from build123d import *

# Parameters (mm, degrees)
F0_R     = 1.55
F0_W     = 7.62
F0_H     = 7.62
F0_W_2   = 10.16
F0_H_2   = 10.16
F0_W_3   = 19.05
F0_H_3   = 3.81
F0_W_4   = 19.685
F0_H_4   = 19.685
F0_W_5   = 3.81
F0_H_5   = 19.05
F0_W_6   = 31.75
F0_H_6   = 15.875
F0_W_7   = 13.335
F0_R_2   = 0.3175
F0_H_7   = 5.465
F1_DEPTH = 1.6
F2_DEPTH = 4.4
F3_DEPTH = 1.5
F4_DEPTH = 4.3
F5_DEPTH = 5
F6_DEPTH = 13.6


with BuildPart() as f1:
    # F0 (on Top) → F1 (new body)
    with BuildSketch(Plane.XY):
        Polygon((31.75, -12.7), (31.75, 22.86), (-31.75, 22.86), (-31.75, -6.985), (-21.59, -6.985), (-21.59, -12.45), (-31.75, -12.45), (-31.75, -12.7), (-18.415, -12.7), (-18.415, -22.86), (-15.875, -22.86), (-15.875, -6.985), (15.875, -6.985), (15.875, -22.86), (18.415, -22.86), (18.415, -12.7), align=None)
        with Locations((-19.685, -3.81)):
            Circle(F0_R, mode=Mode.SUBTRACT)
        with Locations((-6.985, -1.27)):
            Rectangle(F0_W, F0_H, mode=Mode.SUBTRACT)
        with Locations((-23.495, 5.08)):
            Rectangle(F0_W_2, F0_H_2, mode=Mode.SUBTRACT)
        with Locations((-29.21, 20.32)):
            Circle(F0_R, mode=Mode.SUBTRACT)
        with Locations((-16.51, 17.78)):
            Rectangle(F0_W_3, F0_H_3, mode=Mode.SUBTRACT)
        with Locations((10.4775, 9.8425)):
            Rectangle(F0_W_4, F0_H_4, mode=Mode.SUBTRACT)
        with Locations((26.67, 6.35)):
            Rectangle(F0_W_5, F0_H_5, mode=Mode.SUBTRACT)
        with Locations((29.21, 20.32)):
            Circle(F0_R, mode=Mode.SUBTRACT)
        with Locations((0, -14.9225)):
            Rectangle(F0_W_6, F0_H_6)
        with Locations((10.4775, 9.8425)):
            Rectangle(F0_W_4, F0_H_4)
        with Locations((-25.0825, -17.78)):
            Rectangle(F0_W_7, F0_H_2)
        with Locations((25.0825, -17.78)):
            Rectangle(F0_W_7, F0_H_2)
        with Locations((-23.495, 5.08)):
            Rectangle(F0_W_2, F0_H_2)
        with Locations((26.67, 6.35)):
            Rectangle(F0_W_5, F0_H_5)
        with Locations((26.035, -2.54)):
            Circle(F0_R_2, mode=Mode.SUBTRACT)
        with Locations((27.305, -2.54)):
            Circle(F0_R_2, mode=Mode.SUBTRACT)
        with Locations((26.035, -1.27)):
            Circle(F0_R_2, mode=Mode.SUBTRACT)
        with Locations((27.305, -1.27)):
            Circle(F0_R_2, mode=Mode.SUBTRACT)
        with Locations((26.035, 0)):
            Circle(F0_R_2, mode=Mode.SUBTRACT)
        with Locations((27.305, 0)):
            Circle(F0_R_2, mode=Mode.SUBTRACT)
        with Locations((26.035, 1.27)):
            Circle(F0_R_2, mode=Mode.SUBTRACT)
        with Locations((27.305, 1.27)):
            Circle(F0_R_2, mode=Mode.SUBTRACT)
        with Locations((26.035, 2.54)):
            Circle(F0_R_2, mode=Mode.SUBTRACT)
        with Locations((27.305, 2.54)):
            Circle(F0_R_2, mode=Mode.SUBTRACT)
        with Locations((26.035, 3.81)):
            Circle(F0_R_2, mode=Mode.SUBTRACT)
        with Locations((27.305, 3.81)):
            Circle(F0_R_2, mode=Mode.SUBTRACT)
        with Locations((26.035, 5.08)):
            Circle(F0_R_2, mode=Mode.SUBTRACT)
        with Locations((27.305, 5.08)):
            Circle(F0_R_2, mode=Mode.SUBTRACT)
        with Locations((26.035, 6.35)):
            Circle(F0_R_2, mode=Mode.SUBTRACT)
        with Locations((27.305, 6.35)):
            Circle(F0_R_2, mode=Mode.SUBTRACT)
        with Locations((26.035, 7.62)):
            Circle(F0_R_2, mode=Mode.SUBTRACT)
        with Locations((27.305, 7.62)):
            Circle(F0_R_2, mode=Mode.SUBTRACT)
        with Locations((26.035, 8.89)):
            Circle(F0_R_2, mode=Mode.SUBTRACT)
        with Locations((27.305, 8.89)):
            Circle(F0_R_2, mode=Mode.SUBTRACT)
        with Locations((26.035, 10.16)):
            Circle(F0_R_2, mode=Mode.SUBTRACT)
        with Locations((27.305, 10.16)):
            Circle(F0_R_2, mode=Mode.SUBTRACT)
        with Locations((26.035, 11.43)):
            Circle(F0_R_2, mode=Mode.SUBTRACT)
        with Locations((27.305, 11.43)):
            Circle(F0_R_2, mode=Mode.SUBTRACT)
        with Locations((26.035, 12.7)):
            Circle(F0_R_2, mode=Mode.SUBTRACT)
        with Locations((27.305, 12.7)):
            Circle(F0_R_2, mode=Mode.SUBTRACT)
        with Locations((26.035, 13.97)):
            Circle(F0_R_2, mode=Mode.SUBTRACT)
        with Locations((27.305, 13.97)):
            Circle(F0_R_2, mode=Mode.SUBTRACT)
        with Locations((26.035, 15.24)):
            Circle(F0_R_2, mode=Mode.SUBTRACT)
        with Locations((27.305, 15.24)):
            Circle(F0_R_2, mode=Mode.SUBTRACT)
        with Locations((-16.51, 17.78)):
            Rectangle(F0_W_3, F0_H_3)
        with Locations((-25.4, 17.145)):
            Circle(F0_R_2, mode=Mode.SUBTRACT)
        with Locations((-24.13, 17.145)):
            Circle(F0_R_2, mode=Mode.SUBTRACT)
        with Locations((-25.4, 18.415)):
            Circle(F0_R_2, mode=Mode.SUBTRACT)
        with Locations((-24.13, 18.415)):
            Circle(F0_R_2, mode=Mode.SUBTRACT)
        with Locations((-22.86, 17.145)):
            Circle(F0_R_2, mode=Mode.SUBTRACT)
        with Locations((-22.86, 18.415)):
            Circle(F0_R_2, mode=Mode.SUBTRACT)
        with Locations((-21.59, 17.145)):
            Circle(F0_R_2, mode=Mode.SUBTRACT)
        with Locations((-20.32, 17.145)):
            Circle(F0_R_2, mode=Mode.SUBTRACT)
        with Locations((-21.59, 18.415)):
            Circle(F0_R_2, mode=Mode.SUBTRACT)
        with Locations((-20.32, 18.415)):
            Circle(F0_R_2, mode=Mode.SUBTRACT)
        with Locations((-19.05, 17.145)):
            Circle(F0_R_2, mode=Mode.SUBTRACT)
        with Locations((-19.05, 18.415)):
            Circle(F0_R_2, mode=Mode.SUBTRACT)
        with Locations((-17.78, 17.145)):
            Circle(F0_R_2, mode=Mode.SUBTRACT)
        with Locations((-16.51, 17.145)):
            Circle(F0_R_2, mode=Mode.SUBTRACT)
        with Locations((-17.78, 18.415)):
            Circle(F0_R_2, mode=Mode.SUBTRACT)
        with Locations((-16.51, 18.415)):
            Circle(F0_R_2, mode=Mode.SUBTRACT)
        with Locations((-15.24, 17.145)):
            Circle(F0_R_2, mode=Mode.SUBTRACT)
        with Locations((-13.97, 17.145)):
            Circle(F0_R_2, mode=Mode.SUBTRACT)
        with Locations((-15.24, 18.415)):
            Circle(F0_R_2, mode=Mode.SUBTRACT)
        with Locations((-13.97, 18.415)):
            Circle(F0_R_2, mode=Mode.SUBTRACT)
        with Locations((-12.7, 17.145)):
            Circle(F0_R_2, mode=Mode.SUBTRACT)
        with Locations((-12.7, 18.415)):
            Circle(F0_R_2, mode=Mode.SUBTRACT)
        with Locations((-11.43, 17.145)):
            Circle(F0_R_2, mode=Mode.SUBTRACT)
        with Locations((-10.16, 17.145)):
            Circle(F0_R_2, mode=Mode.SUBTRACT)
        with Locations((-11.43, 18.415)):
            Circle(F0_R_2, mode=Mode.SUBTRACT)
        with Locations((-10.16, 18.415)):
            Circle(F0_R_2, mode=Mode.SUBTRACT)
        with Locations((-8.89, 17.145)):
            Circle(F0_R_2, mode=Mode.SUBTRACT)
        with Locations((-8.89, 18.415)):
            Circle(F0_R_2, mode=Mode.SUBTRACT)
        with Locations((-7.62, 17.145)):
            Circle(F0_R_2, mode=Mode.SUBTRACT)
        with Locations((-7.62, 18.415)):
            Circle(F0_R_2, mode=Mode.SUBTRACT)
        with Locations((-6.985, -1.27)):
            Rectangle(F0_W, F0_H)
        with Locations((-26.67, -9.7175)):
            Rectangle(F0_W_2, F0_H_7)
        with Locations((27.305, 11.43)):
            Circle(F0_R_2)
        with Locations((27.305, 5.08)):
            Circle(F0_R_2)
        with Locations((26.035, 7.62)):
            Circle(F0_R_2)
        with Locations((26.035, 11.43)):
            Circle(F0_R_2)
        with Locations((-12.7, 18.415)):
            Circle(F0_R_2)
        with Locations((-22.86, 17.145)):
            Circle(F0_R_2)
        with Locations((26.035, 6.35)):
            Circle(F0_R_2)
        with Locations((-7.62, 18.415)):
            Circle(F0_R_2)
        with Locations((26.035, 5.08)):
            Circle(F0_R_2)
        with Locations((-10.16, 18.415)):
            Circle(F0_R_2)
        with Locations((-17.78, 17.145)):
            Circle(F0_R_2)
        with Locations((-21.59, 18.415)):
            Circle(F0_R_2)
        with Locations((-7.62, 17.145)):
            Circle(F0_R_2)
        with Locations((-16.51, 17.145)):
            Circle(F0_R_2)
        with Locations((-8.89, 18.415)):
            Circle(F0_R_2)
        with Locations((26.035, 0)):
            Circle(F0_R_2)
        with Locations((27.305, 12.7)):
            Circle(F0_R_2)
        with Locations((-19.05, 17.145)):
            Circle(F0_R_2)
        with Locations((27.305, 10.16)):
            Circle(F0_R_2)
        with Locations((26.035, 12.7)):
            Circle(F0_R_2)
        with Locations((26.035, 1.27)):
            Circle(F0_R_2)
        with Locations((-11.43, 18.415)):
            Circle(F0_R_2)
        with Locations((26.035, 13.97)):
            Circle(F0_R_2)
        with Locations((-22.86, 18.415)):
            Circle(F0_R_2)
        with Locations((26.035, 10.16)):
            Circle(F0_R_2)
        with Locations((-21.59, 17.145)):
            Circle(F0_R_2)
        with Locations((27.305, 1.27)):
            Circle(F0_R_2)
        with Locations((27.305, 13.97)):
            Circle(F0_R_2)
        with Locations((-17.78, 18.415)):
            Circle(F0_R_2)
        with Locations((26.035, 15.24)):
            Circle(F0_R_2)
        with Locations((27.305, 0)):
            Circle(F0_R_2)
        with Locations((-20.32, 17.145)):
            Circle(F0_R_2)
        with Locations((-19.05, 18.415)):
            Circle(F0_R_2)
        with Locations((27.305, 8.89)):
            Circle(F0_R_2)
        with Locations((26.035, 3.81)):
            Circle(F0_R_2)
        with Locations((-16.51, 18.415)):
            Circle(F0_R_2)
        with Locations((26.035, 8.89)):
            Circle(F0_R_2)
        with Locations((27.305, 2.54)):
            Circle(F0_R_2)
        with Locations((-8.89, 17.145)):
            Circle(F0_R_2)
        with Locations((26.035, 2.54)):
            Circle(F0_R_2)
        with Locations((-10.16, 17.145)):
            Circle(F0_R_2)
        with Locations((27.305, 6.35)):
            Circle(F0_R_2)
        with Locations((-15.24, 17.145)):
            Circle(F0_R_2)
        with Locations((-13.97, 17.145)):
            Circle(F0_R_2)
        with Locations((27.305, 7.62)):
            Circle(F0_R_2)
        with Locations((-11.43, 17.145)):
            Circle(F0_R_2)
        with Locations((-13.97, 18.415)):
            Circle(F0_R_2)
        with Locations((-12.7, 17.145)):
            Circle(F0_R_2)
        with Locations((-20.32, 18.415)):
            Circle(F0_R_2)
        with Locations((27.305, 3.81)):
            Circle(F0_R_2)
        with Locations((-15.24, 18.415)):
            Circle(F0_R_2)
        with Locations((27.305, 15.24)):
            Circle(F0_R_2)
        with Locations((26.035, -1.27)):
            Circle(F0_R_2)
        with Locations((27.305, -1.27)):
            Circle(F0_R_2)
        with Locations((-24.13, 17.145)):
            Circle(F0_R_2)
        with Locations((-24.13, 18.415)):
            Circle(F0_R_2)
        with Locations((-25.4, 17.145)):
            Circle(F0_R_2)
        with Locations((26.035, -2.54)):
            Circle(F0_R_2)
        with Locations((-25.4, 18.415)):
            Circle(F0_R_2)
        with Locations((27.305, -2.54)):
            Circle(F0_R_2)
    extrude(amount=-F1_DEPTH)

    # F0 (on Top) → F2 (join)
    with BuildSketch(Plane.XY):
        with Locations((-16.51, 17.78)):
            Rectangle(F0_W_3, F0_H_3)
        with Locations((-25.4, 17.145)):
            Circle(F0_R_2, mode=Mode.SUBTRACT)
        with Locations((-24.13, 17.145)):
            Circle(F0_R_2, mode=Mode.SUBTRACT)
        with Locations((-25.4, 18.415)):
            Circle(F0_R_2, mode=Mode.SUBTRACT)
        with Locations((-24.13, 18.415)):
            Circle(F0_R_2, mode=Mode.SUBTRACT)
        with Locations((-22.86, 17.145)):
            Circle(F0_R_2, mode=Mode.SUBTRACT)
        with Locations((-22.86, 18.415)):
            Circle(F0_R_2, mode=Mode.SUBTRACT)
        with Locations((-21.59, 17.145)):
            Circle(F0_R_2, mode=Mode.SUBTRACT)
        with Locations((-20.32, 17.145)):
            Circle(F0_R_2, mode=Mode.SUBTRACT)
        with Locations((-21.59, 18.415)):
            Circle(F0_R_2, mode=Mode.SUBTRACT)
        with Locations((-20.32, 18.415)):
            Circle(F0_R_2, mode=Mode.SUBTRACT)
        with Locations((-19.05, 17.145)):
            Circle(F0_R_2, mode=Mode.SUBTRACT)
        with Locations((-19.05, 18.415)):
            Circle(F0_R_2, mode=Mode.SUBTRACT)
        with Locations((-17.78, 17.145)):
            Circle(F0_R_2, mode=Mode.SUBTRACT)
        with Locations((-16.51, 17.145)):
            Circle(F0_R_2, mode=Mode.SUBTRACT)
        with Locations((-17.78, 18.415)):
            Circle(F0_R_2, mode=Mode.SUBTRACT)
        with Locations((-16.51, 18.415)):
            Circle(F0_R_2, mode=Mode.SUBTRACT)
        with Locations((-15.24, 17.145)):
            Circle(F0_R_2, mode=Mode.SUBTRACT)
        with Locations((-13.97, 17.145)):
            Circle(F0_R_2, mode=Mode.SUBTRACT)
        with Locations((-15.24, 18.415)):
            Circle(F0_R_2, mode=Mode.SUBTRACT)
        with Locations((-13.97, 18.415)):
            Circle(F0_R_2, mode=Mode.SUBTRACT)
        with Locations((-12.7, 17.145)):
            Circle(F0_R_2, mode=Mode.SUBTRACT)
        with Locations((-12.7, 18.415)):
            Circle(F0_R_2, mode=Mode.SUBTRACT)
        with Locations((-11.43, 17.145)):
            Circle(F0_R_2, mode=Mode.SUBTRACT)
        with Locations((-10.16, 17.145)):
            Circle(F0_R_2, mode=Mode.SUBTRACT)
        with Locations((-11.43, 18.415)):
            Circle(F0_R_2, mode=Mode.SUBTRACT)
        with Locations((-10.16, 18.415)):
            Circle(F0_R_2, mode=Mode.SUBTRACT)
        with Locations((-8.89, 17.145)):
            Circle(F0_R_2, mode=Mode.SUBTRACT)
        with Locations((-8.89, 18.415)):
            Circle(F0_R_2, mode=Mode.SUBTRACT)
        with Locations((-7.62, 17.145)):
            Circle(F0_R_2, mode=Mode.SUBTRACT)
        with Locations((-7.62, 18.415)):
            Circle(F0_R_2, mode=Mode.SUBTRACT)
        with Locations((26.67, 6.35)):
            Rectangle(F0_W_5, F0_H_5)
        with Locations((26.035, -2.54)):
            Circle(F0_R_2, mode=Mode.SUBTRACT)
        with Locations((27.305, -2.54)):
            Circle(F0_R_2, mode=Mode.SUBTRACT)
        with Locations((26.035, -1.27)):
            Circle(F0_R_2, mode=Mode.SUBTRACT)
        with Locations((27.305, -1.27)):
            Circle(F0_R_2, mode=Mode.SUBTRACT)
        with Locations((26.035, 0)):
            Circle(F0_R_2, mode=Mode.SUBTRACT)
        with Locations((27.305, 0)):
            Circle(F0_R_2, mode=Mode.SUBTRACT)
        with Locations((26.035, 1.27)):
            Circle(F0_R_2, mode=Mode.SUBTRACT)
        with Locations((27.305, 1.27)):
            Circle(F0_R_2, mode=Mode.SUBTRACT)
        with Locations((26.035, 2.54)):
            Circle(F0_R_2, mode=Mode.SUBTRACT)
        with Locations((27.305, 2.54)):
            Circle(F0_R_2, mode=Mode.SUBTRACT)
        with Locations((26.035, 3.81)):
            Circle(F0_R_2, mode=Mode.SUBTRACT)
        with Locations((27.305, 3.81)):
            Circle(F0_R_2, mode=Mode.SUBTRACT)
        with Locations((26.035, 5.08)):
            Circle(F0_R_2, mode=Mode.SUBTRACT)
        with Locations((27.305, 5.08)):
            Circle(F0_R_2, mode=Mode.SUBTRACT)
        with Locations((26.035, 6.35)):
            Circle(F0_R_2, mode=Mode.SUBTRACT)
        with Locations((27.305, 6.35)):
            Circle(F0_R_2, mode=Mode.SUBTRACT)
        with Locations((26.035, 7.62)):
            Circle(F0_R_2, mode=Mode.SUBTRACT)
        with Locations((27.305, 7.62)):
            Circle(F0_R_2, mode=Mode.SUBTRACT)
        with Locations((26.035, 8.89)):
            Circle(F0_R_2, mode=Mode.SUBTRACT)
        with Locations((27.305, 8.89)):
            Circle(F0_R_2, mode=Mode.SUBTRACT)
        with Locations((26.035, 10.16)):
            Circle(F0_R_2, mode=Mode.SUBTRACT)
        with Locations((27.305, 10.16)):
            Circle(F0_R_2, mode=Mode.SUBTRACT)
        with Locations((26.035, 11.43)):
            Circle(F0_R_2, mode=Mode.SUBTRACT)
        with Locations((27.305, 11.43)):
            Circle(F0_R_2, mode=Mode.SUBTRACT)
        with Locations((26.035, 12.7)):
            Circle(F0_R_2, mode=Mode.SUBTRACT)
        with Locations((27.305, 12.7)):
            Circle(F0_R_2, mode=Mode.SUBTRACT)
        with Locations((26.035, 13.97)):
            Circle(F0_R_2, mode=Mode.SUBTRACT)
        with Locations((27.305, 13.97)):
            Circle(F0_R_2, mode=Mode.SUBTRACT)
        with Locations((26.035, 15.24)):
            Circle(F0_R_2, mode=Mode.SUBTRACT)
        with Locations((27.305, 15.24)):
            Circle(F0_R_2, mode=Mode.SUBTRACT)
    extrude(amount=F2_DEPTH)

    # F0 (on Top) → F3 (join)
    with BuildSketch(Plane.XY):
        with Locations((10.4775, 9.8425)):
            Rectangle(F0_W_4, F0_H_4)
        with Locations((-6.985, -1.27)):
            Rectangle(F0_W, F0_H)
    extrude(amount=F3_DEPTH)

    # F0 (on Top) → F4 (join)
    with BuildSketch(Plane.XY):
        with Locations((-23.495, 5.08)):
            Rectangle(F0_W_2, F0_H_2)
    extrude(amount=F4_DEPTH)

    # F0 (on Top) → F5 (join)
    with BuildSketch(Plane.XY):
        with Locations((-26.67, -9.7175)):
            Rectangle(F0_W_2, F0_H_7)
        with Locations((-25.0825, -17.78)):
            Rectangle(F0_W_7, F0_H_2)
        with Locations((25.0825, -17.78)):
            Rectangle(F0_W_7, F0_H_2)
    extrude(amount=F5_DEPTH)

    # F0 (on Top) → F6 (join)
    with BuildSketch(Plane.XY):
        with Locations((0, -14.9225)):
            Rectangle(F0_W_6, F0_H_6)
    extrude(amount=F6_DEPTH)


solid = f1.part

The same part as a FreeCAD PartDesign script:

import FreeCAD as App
import Part
import Sketcher
Q = App.Units.Quantity

doc = App.newDocument("Part")
body = doc.addObject("PartDesign::Body", "Body")

# Sketch on XY plane
sketch1 = body.newObject("Sketcher::SketchObject", "Sketch")
sketch1.AttachmentSupport = (doc.getObject("XY_Plane"), [""])
sketch1.MapMode = "FlatFace"
sketch1.addGeometry([
    Part.LineSegment(App.Vector(31.8, 22.9, 0), App.Vector(-31.8, 22.9, 0)),  # 0
    Part.LineSegment(App.Vector(-31.8, 22.9, 0), App.Vector(-31.8, -22.9, 0)),  # 1
    Part.LineSegment(App.Vector(-31.8, -22.9, 0), App.Vector(31.8, -22.9, 0)),  # 2
    Part.LineSegment(App.Vector(31.8, -22.9, 0), App.Vector(31.8, 22.9, 0)),  # 3
    Part.Circle(App.Vector(-19.7, -3.8, 0), App.Vector(0, 0, 1), 1.6),  # 4
    Part.Circle(App.Vector(-29.2, 20.3, 0), App.Vector(0, 0, 1), 1.6),  # 5
    Part.Circle(App.Vector(29.2, 20.3, 0), App.Vector(0, 0, 1), 1.6),  # 6
], False)
sketch1.addConstraint([
    Sketcher.Constraint("Coincident", 0, 2, 1, 1),
    Sketcher.Constraint("Coincident", 1, 2, 2, 1),
    Sketcher.Constraint("Coincident", 2, 2, 3, 1),
    Sketcher.Constraint("Coincident", 3, 2, 0, 1),
    Sketcher.Constraint("Horizontal", 0),
    Sketcher.Constraint("Vertical", 1),
    Sketcher.Constraint("Horizontal", 2),
    Sketcher.Constraint("Vertical", 3),
    Sketcher.Constraint("Equal", 4, 5),
    Sketcher.Constraint("Equal", 5, 6),
    Sketcher.Constraint("Symmetric", 0, 2, 2, 2, -1, 1),
    Sketcher.Constraint("Symmetric", 5, 3, 6, 3, -2),
    Sketcher.Constraint("DistanceX", 0, 2, 0, 1, Q("2.5 in")),
    Sketcher.Constraint("DistanceY", 1, 2, 1, 1, Q("1.8 in")),
    Sketcher.Constraint("DistanceY", -1, 1, 5, 3, Q("0.8 in")),
    Sketcher.Constraint("DistanceX", 5, 3, 6, 3, Q("2.3 in")),
    Sketcher.Constraint("Diameter", 4, 3.1),
    Sketcher.Constraint("DistanceY", 4, 3, -1, 1, Q("0.15 in")),
    Sketcher.Constraint("DistanceX", 4, 3, -1, 1, Q("0.775 in")),
])
pad1 = body.newObject("PartDesign::Pad", "Pad")
pad1.Profile = sketch1
pad1.Length = 1.6
pad1.Reversed = True

# Sketch on XY plane
sketch2 = body.newObject("Sketcher::SketchObject", "Sketch001")
sketch2.AttachmentSupport = (doc.getObject("XY_Plane"), [""])
sketch2.MapMode = "FlatFace"
sketch2.addGeometry([
    Part.LineSegment(App.Vector(-26.04, 19.68, 0), App.Vector(-26.04, 15.88, 0)),  # 0
    Part.LineSegment(App.Vector(-26.04, 15.88, 0), App.Vector(-6.99, 15.88, 0)),  # 1
    Part.LineSegment(App.Vector(-6.99, 15.88, 0), App.Vector(-6.99, 19.68, 0)),  # 2
    Part.LineSegment(App.Vector(-6.99, 19.68, 0), App.Vector(-26.04, 19.68, 0)),  # 3
    Part.Circle(App.Vector(-25.4, 17.14, 0), App.Vector(0, 0, 1), 0.32),  # 4
    Part.Circle(App.Vector(-24.13, 17.14, 0), App.Vector(0, 0, 1), 0.32),  # 5
    Part.Circle(App.Vector(-22.86, 17.14, 0), App.Vector(0, 0, 1), 0.32),  # 6
    Part.Circle(App.Vector(-21.59, 17.14, 0), App.Vector(0, 0, 1), 0.32),  # 7
    Part.Circle(App.Vector(-20.32, 17.14, 0), App.Vector(0, 0, 1), 0.32),  # 8
    Part.Circle(App.Vector(-19.05, 17.14, 0), App.Vector(0, 0, 1), 0.32),  # 9
    Part.Circle(App.Vector(-17.78, 17.14, 0), App.Vector(0, 0, 1), 0.32),  # 10
    Part.Circle(App.Vector(-16.51, 17.14, 0), App.Vector(0, 0, 1), 0.32),  # 11
    Part.Circle(App.Vector(-15.24, 17.14, 0), App.Vector(0, 0, 1), 0.32),  # 12
    Part.Circle(App.Vector(-13.97, 17.14, 0), App.Vector(0, 0, 1), 0.32),  # 13
    Part.Circle(App.Vector(-12.7, 17.14, 0), App.Vector(0, 0, 1), 0.32),  # 14
    Part.Circle(App.Vector(-11.43, 17.14, 0), App.Vector(0, 0, 1), 0.32),  # 15
    Part.Circle(App.Vector(-10.16, 17.14, 0), App.Vector(0, 0, 1), 0.32),  # 16
    Part.Circle(App.Vector(-8.89, 17.14, 0), App.Vector(0, 0, 1), 0.32),  # 17
    Part.Circle(App.Vector(-7.62, 17.14, 0), App.Vector(0, 0, 1), 0.32),  # 18
    Part.Circle(App.Vector(-25.4, 18.41, 0), App.Vector(0, 0, 1), 0.32),  # 19
    Part.Circle(App.Vector(-24.13, 18.41, 0), App.Vector(0, 0, 1), 0.32),  # 20
    Part.Circle(App.Vector(-22.86, 18.41, 0), App.Vector(0, 0, 1), 0.32),  # 21
    Part.Circle(App.Vector(-21.59, 18.41, 0), App.Vector(0, 0, 1), 0.32),  # 22
    Part.Circle(App.Vector(-20.32, 18.41, 0), App.Vector(0, 0, 1), 0.32),  # 23
    Part.Circle(App.Vector(-19.05, 18.41, 0), App.Vector(0, 0, 1), 0.32),  # 24
    Part.Circle(App.Vector(-17.78, 18.41, 0), App.Vector(0, 0, 1), 0.32),  # 25
    Part.Circle(App.Vector(-16.51, 18.41, 0), App.Vector(0, 0, 1), 0.32),  # 26
    Part.Circle(App.Vector(-15.24, 18.41, 0), App.Vector(0, 0, 1), 0.32),  # 27
    Part.Circle(App.Vector(-13.97, 18.41, 0), App.Vector(0, 0, 1), 0.32),  # 28
    Part.Circle(App.Vector(-12.7, 18.41, 0), App.Vector(0, 0, 1), 0.32),  # 29
    Part.Circle(App.Vector(-11.43, 18.41, 0), App.Vector(0, 0, 1), 0.32),  # 30
    Part.Circle(App.Vector(-10.16, 18.41, 0), App.Vector(0, 0, 1), 0.32),  # 31
    Part.Circle(App.Vector(-8.89, 18.41, 0), App.Vector(0, 0, 1), 0.32),  # 32
    Part.Circle(App.Vector(-7.62, 18.41, 0), App.Vector(0, 0, 1), 0.32),  # 33
    Part.LineSegment(App.Vector(24.77, 15.88, 0), App.Vector(24.77, -3.17, 0)),  # 34
    Part.LineSegment(App.Vector(24.77, -3.17, 0), App.Vector(28.57, -3.17, 0)),  # 35
    Part.LineSegment(App.Vector(28.57, -3.17, 0), App.Vector(28.57, 15.88, 0)),  # 36
    Part.LineSegment(App.Vector(28.57, 15.88, 0), App.Vector(24.77, 15.88, 0)),  # 37
    Part.Circle(App.Vector(26.04, -2.54, 0), App.Vector(0, 0, 1), 0.32),  # 38
    Part.Circle(App.Vector(26.04, -1.27, 0), App.Vector(0, 0, 1), 0.32),  # 39
    Part.Circle(App.Vector(26.04, 0, 0), App.Vector(0, 0, 1), 0.32),  # 40
    Part.Circle(App.Vector(26.04, 1.27, 0), App.Vector(0, 0, 1), 0.32),  # 41
    Part.Circle(App.Vector(26.04, 2.54, 0), App.Vector(0, 0, 1), 0.32),  # 42
    Part.Circle(App.Vector(26.04, 3.81, 0), App.Vector(0, 0, 1), 0.32),  # 43
    Part.Circle(App.Vector(26.04, 5.08, 0), App.Vector(0, 0, 1), 0.32),  # 44
    Part.Circle(App.Vector(27.3, -2.54, 0), App.Vector(0, 0, 1), 0.32),  # 45
    Part.Circle(App.Vector(27.3, -1.27, 0), App.Vector(0, 0, 1), 0.32),  # 46
    Part.Circle(App.Vector(27.3, 0, 0), App.Vector(0, 0, 1), 0.32),  # 47
    Part.Circle(App.Vector(27.3, 1.27, 0), App.Vector(0, 0, 1), 0.32),  # 48
    Part.Circle(App.Vector(27.3, 2.54, 0), App.Vector(0, 0, 1), 0.32),  # 49
    Part.Circle(App.Vector(27.3, 3.81, 0), App.Vector(0, 0, 1), 0.32),  # 50
    Part.Circle(App.Vector(27.3, 5.08, 0), App.Vector(0, 0, 1), 0.32),  # 51
    Part.Circle(App.Vector(26.04, 6.35, 0), App.Vector(0, 0, 1), 0.32),  # 52
    Part.Circle(App.Vector(26.04, 7.62, 0), App.Vector(0, 0, 1), 0.32),  # 53
    Part.Circle(App.Vector(26.04, 8.89, 0), App.Vector(0, 0, 1), 0.32),  # 54
    Part.Circle(App.Vector(26.04, 10.16, 0), App.Vector(0, 0, 1), 0.32),  # 55
    Part.Circle(App.Vector(26.04, 11.43, 0), App.Vector(0, 0, 1), 0.32),  # 56
    Part.Circle(App.Vector(26.04, 12.7, 0), App.Vector(0, 0, 1), 0.32),  # 57
    Part.Circle(App.Vector(26.04, 13.97, 0), App.Vector(0, 0, 1), 0.32),  # 58
    Part.Circle(App.Vector(26.04, 15.24, 0), App.Vector(0, 0, 1), 0.32),  # 59
    Part.Circle(App.Vector(27.3, 6.35, 0), App.Vector(0, 0, 1), 0.32),  # 60
    Part.Circle(App.Vector(27.3, 7.62, 0), App.Vector(0, 0, 1), 0.32),  # 61
    Part.Circle(App.Vector(27.3, 8.89, 0), App.Vector(0, 0, 1), 0.32),  # 62
    Part.Circle(App.Vector(27.3, 10.16, 0), App.Vector(0, 0, 1), 0.32),  # 63
    Part.Circle(App.Vector(27.3, 11.43, 0), App.Vector(0, 0, 1), 0.32),  # 64
    Part.Circle(App.Vector(27.3, 12.7, 0), App.Vector(0, 0, 1), 0.32),  # 65
    Part.Circle(App.Vector(27.3, 13.97, 0), App.Vector(0, 0, 1), 0.32),  # 66
    Part.Circle(App.Vector(27.3, 15.24, 0), App.Vector(0, 0, 1), 0.32),  # 67
], False)
sketch2.addConstraint([
    Sketcher.Constraint("Coincident", 0, 2, 1, 1),
    Sketcher.Constraint("Coincident", 1, 2, 2, 1),
    Sketcher.Constraint("Coincident", 2, 2, 3, 1),
    Sketcher.Constraint("Coincident", 3, 2, 0, 1),
    Sketcher.Constraint("Coincident", 34, 2, 35, 1),
    Sketcher.Constraint("Coincident", 35, 2, 36, 1),
    Sketcher.Constraint("Coincident", 36, 2, 37, 1),
    Sketcher.Constraint("Coincident", 37, 2, 34, 1),
    Sketcher.Constraint("Vertical", 0),
    Sketcher.Constraint("Horizontal", 1),
    Sketcher.Constraint("Vertical", 2),
    Sketcher.Constraint("Horizontal", 3),
    Sketcher.Constraint("Vertical", 34),
    Sketcher.Constraint("Horizontal", 35),
    Sketcher.Constraint("Vertical", 36),
    Sketcher.Constraint("Horizontal", 37),
    Sketcher.Constraint("Equal", 4, 5),
    Sketcher.Constraint("Equal", 5, 6),
    Sketcher.Constraint("Equal", 6, 7),
    Sketcher.Constraint("Equal", 7, 8),
    Sketcher.Constraint("Equal", 8, 9),
    Sketcher.Constraint("Equal", 9, 10),
    Sketcher.Constraint("Equal", 10, 11),
    Sketcher.Constraint("Equal", 11, 12),
    Sketcher.Constraint("Equal", 12, 13),
    Sketcher.Constraint("Equal", 13, 14),
    Sketcher.Constraint("Equal", 14, 15),
    Sketcher.Constraint("Equal", 15, 16),
    Sketcher.Constraint("Equal", 16, 17),
    Sketcher.Constraint("Equal", 17, 18),
    Sketcher.Constraint("Equal", 18, 19),
    Sketcher.Constraint("Equal", 19, 20),
    Sketcher.Constraint("Equal", 20, 21),
    Sketcher.Constraint("Equal", 21, 22),
    Sketcher.Constraint("Equal", 22, 23),
    Sketcher.Constraint("Equal", 23, 24),
    Sketcher.Constraint("Equal", 24, 25),
    Sketcher.Constraint("Equal", 25, 26),
    Sketcher.Constraint("Equal", 26, 27),
    Sketcher.Constraint("Equal", 27, 28),
    Sketcher.Constraint("Equal", 28, 29),
    Sketcher.Constraint("Equal", 29, 30),
    Sketcher.Constraint("Equal", 30, 31),
    Sketcher.Constraint("Equal", 31, 32),
    Sketcher.Constraint("Equal", 32, 33),
    Sketcher.Constraint("Equal", 33, 38),
    Sketcher.Constraint("Equal", 38, 39),
    Sketcher.Constraint("Equal", 39, 40),
    Sketcher.Constraint("Equal", 40, 41),
    Sketcher.Constraint("Equal", 41, 42),
    Sketcher.Constraint("Equal", 42, 43),
    Sketcher.Constraint("Equal", 43, 44),
    Sketcher.Constraint("Equal", 44, 45),
    Sketcher.Constraint("Equal", 45, 46),
    Sketcher.Constraint("Equal", 46, 47),
    Sketcher.Constraint("Equal", 47, 48),
    Sketcher.Constraint("Equal", 48, 49),
    Sketcher.Constraint("Equal", 49, 50),
    Sketcher.Constraint("Equal", 50, 51),
    Sketcher.Constraint("Equal", 51, 52),
    Sketcher.Constraint("Equal", 52, 53),
    Sketcher.Constraint("Equal", 53, 54),
    Sketcher.Constraint("Equal", 54, 55),
    Sketcher.Constraint("Equal", 55, 56),
    Sketcher.Constraint("Equal", 56, 57),
    Sketcher.Constraint("Equal", 57, 58),
    Sketcher.Constraint("Equal", 58, 59),
    Sketcher.Constraint("Equal", 59, 60),
    Sketcher.Constraint("Equal", 60, 61),
    Sketcher.Constraint("Equal", 61, 62),
    Sketcher.Constraint("Equal", 62, 63),
    Sketcher.Constraint("Equal", 63, 64),
    Sketcher.Constraint("Equal", 64, 65),
    Sketcher.Constraint("Equal", 65, 66),
    Sketcher.Constraint("Equal", 66, 67),
    Sketcher.Constraint("Symmetric", 39, 3, 41, 3, -1),
    Sketcher.Constraint("Symmetric", 38, 3, 42, 3, -1),
    Sketcher.Constraint("Symmetric", 46, 3, 48, 3, -1),
    Sketcher.Constraint("Symmetric", 45, 3, 49, 3, -1),
    Sketcher.Constraint("PointOnObject", 40, 3, -1),
    Sketcher.Constraint("PointOnObject", 47, 3, -1),
    Sketcher.Constraint("Horizontal", 4, 3, 5, 3),
    Sketcher.Constraint("Horizontal", 5, 3, 6, 3),
    Sketcher.Constraint("Horizontal", 6, 3, 7, 3),
    Sketcher.Constraint("Horizontal", 7, 3, 8, 3),
    Sketcher.Constraint("Horizontal", 8, 3, 9, 3),
    Sketcher.Constraint("Horizontal", 9, 3, 10, 3),
    Sketcher.Constraint("Horizontal", 10, 3, 11, 3),
    Sketcher.Constraint("Horizontal", 11, 3, 12, 3),
    Sketcher.Constraint("Horizontal", 12, 3, 13, 3),
    Sketcher.Constraint("Horizontal", 13, 3, 14, 3),
    Sketcher.Constraint("Horizontal", 14, 3, 15, 3),
    Sketcher.Constraint("Horizontal", 15, 3, 16, 3),
    Sketcher.Constraint("Horizontal", 16, 3, 17, 3),
    Sketcher.Constraint("Horizontal", 17, 3, 18, 3),
    Sketcher.Constraint("Horizontal", 19, 3, 20, 3),
    Sketcher.Constraint("Horizontal", 20, 3, 21, 3),
    Sketcher.Constraint("Horizontal", 21, 3, 22, 3),
    Sketcher.Constraint("Horizontal", 22, 3, 23, 3),
    Sketcher.Constraint("Horizontal", 23, 3, 24, 3),
    Sketcher.Constraint("Horizontal", 24, 3, 25, 3),
    Sketcher.Constraint("Horizontal", 25, 3, 26, 3),
    Sketcher.Constraint("Horizontal", 26, 3, 27, 3),
    Sketcher.Constraint("Horizontal", 27, 3, 28, 3),
    Sketcher.Constraint("Horizontal", 28, 3, 29, 3),
    Sketcher.Constraint("Horizontal", 29, 3, 30, 3),
    Sketcher.Constraint("Horizontal", 30, 3, 31, 3),
    Sketcher.Constraint("Horizontal", 31, 3, 32, 3),
    Sketcher.Constraint("Horizontal", 32, 3, 33, 3),
    Sketcher.Constraint("Horizontal", 38, 3, 45, 3),
    Sketcher.Constraint("Horizontal", 39, 3, 46, 3),
    Sketcher.Constraint("Horizontal", 43, 3, 50, 3),
    Sketcher.Constraint("Horizontal", 44, 3, 51, 3),
    Sketcher.Constraint("Horizontal", 52, 3, 60, 3),
    Sketcher.Constraint("Horizontal", 53, 3, 61, 3),
    Sketcher.Constraint("Horizontal", 54, 3, 62, 3),
    Sketcher.Constraint("Horizontal", 55, 3, 63, 3),
    Sketcher.Constraint("Horizontal", 56, 3, 64, 3),
    Sketcher.Constraint("Horizontal", 57, 3, 65, 3),
    Sketcher.Constraint("Horizontal", 58, 3, 66, 3),
    Sketcher.Constraint("Horizontal", 59, 3, 67, 3),
    Sketcher.Constraint("Horizontal", 1, 2, 36, 2),
    Sketcher.Constraint("Vertical", 4, 3, 19, 3),
    Sketcher.Constraint("Vertical", 5, 3, 20, 3),
    Sketcher.Constraint("Vertical", 6, 3, 21, 3),
    Sketcher.Constraint("Vertical", 7, 3, 22, 3),
    Sketcher.Constraint("Vertical", 8, 3, 23, 3),
    Sketcher.Constraint("Vertical", 9, 3, 24, 3),
    Sketcher.Constraint("Vertical", 10, 3, 25, 3),
    Sketcher.Constraint("Vertical", 11, 3, 26, 3),
    Sketcher.Constraint("Vertical", 12, 3, 27, 3),
    Sketcher.Constraint("Vertical", 13, 3, 28, 3),
    Sketcher.Constraint("Vertical", 14, 3, 29, 3),
    Sketcher.Constraint("Vertical", 15, 3, 30, 3),
    Sketcher.Constraint("Vertical", 16, 3, 31, 3),
    Sketcher.Constraint("Vertical", 17, 3, 32, 3),
    Sketcher.Constraint("Vertical", 18, 3, 33, 3),
    Sketcher.Constraint("Vertical", 38, 3, 39, 3),
    Sketcher.Constraint("Vertical", 39, 3, 40, 3),
    Sketcher.Constraint("Vertical", 42, 3, 43, 3),
    Sketcher.Constraint("Vertical", 43, 3, 44, 3),
    Sketcher.Constraint("Vertical", 45, 3, 46, 3),
    Sketcher.Constraint("Vertical", 46, 3, 47, 3),
    Sketcher.Constraint("Vertical", 49, 3, 50, 3),
    Sketcher.Constraint("Vertical", 50, 3, 51, 3),
    Sketcher.Constraint("Vertical", 44, 3, 52, 3),
    Sketcher.Constraint("Vertical", 52, 3, 53, 3),
    Sketcher.Constraint("Vertical", 53, 3, 54, 3),
    Sketcher.Constraint("Vertical", 54, 3, 55, 3),
    Sketcher.Constraint("Vertical", 55, 3, 56, 3),
    Sketcher.Constraint("Vertical", 56, 3, 57, 3),
    Sketcher.Constraint("Vertical", 57, 3, 58, 3),
    Sketcher.Constraint("Vertical", 58, 3, 59, 3),
    Sketcher.Constraint("Vertical", 51, 3, 60, 3),
    Sketcher.Constraint("Vertical", 60, 3, 61, 3),
    Sketcher.Constraint("Vertical", 61, 3, 62, 3),
    Sketcher.Constraint("Vertical", 62, 3, 63, 3),
    Sketcher.Constraint("Vertical", 63, 3, 64, 3),
    Sketcher.Constraint("Vertical", 64, 3, 65, 3),
    Sketcher.Constraint("Vertical", 65, 3, 66, 3),
    Sketcher.Constraint("Vertical", 66, 3, 67, 3),
    Sketcher.Constraint("Equal", 37, 0),
    Sketcher.Constraint("Equal", 3, 34),
    Sketcher.Constraint("Diameter", 4, Q("0.025 in")),
    Sketcher.Constraint("DistanceX", 4, 3, -1, 1, Q("1 in")),
    Sketcher.Constraint("DistanceX", 1, 1, 1, 2, Q("0.75 in")),
    Sketcher.Constraint("DistanceX", 35, 1, 35, 2, Q("0.15 in")),
    Sketcher.Constraint("DistanceX", 6, 3, -1, 1, Q("0.9 in")),
    Sketcher.Constraint("DistanceX", 8, 3, -1, 1, Q("0.8 in")),
    Sketcher.Constraint("DistanceX", 10, 3, -1, 1, Q("0.7 in")),
    Sketcher.Constraint("DistanceX", 12, 3, -1, 1, Q("0.6 in")),
    Sketcher.Constraint("DistanceX", 14, 3, -1, 1, Q("0.5 in")),
    Sketcher.Constraint("DistanceX", 16, 3, -1, 1, Q("0.4 in")),
    Sketcher.Constraint("DistanceX", 18, 3, -1, 1, Q("0.3 in")),
    Sketcher.Constraint("DistanceY", 38, 3, -1, 1, Q("0.1 in")),
    Sketcher.Constraint("DistanceY", -1, 1, 44, 3, Q("0.2 in")),
    Sketcher.Constraint("DistanceY", -1, 1, 53, 3, Q("0.3 in")),
    Sketcher.Constraint("DistanceY", -1, 1, 55, 3, Q("0.4 in")),
    Sketcher.Constraint("DistanceY", -1, 1, 57, 3, Q("0.5 in")),
    Sketcher.Constraint("DistanceY", -1, 1, 59, 3, Q("0.6 in")),
    Sketcher.Constraint("DistanceX", 5, 3, -1, 1, Q("0.95 in")),
    Sketcher.Constraint("DistanceX", 7, 3, -1, 1, Q("0.85 in")),
    Sketcher.Constraint("DistanceX", 9, 3, -1, 1, Q("0.75 in")),
    Sketcher.Constraint("DistanceX", 11, 3, -1, 1, Q("0.65 in")),
    Sketcher.Constraint("DistanceX", 13, 3, -1, 1, Q("0.55 in")),
    Sketcher.Constraint("DistanceX", 15, 3, -1, 1, Q("0.45 in")),
    Sketcher.Constraint("DistanceX", 17, 3, -1, 1, Q("0.35 in")),
    Sketcher.Constraint("DistanceY", 39, 3, -1, 1, Q("0.05 in")),
    Sketcher.Constraint("DistanceY", -1, 1, 43, 3, Q("0.15 in")),
    Sketcher.Constraint("DistanceY", -1, 1, 52, 3, Q("0.25 in")),
    Sketcher.Constraint("DistanceY", -1, 1, 54, 3, Q("0.35 in")),
    Sketcher.Constraint("DistanceY", -1, 1, 56, 3, Q("0.45 in")),
    Sketcher.Constraint("DistanceY", -1, 1, 58, 3, Q("0.55 in")),
    Sketcher.Constraint("DistanceY", -1, 1, 4, 3, Q("0.675 in")),
    Sketcher.Constraint("DistanceY", -1, 1, 19, 3, Q("0.725 in")),
    Sketcher.Constraint("DistanceX", -1, 1, 38, 3, Q("1.025 in")),
    Sketcher.Constraint("DistanceX", -1, 1, 45, 3, Q("1.075 in")),
    Sketcher.Constraint("DistanceX", 0, 2, -1, 1, Q("1.025 in")),
    Sketcher.Constraint("DistanceY", -1, 1, 0, 2, Q("0.625 in")),
    Sketcher.Constraint("DistanceX", -1, 1, 34, 2, Q("0.975 in")),
])
pad2 = body.newObject("PartDesign::Pad", "Pad001")
pad2.Profile = sketch2
pad2.Length = 4.4

# Sketch on XY plane
sketch3 = body.newObject("Sketcher::SketchObject", "Sketch002")
sketch3.AttachmentSupport = (doc.getObject("XY_Plane"), [""])
sketch3.MapMode = "FlatFace"
sketch3.addGeometry([
    Part.LineSegment(App.Vector(1, 20, 0), App.Vector(1, 0, 0)),  # 0
    Part.LineSegment(App.Vector(1, 0, 0), App.Vector(20, 0, 0)),  # 1
    Part.LineSegment(App.Vector(20, 0, 0), App.Vector(20, 20, 0)),  # 2
    Part.LineSegment(App.Vector(20, 20, 0), App.Vector(1, 20, 0)),  # 3
    Part.LineSegment(App.Vector(-11, 3, 0), App.Vector(-11, -5, 0)),  # 4
    Part.LineSegment(App.Vector(-11, -5, 0), App.Vector(-3, -5, 0)),  # 5
    Part.LineSegment(App.Vector(-3, -5, 0), App.Vector(-3, 3, 0)),  # 6
    Part.LineSegment(App.Vector(-3, 3, 0), App.Vector(-11, 3, 0)),  # 7
], False)
sketch3.addConstraint([
    Sketcher.Constraint("Coincident", 0, 2, 1, 1),
    Sketcher.Constraint("Coincident", 1, 2, 2, 1),
    Sketcher.Constraint("Coincident", 2, 2, 3, 1),
    Sketcher.Constraint("Coincident", 3, 2, 0, 1),
    Sketcher.Constraint("Coincident", 4, 2, 5, 1),
    Sketcher.Constraint("Coincident", 5, 2, 6, 1),
    Sketcher.Constraint("Coincident", 6, 2, 7, 1),
    Sketcher.Constraint("Coincident", 7, 2, 4, 1),
    Sketcher.Constraint("Vertical", 0),
    Sketcher.Constraint("Horizontal", 1),
    Sketcher.Constraint("Vertical", 2),
    Sketcher.Constraint("Horizontal", 3),
    Sketcher.Constraint("Vertical", 4),
    Sketcher.Constraint("Horizontal", 5),
    Sketcher.Constraint("Vertical", 6),
    Sketcher.Constraint("Horizontal", 7),
    Sketcher.Constraint("PointOnObject", 0, 2, -1),
    Sketcher.Constraint("Equal", 3, 0),
    Sketcher.Constraint("Equal", 7, 4),
    Sketcher.Constraint("DistanceX", 5, 1, 5, 2, Q("0.3 in")),
    Sketcher.Constraint("DistanceX", -1, 1, 1, 2, Q("0.8 in")),
    Sketcher.Constraint("DistanceY", 4, 2, -1, 1, Q("0.2 in")),
    Sketcher.Constraint("DistanceX", 1, 1, 1, 2, Q("0.775 in")),
    Sketcher.Constraint("DistanceX", 4, 2, 0, 2, Q("0.45 in")),
])
pad3 = body.newObject("PartDesign::Pad", "Pad002")
pad3.Profile = sketch3
pad3.Length = 1.5

# Sketch on XY plane
sketch4 = body.newObject("Sketcher::SketchObject", "Sketch003")
sketch4.AttachmentSupport = (doc.getObject("XY_Plane"), [""])
sketch4.MapMode = "FlatFace"
sketch4.addGeometry([
    Part.LineSegment(App.Vector(-29, 10, 0), App.Vector(-29, 0, 0)),
    Part.LineSegment(App.Vector(-29, 0, 0), App.Vector(-18, 0, 0)),
    Part.LineSegment(App.Vector(-18, 0, 0), App.Vector(-18, 10, 0)),
    Part.LineSegment(App.Vector(-18, 10, 0), App.Vector(-29, 10, 0)),
], False)
sketch4.addConstraint([
    Sketcher.Constraint("Coincident", 0, 2, 1, 1),
    Sketcher.Constraint("Coincident", 1, 2, 2, 1),
    Sketcher.Constraint("Coincident", 2, 2, 3, 1),
    Sketcher.Constraint("Coincident", 3, 2, 0, 1),
    Sketcher.Constraint("Vertical", 0),
    Sketcher.Constraint("Horizontal", 1),
    Sketcher.Constraint("Vertical", 2),
    Sketcher.Constraint("Horizontal", 3),
    Sketcher.Constraint("PointOnObject", 0, 2, -1),
    Sketcher.Constraint("Equal", 3, 0),
    Sketcher.Constraint("DistanceX", 1, 1, 1, 2, Q("0.4 in")),
    Sketcher.Constraint("DistanceX", 0, 2, -1, 1, Q("1.125 in")),
])
pad4 = body.newObject("PartDesign::Pad", "Pad003")
pad4.Profile = sketch4
pad4.Length = 4.3

# Sketch on XY plane
sketch5 = body.newObject("Sketcher::SketchObject", "Sketch004")
sketch5.AttachmentSupport = (doc.getObject("XY_Plane"), [""])
sketch5.MapMode = "FlatFace"
sketch5.addGeometry([
    Part.LineSegment(App.Vector(-32, -7, 0), App.Vector(-32, -12, 0)),  # 0
    Part.LineSegment(App.Vector(-32, -12, 0), App.Vector(-22, -12, 0)),  # 1
    Part.LineSegment(App.Vector(-22, -12, 0), App.Vector(-22, -7, 0)),  # 2
    Part.LineSegment(App.Vector(-22, -7, 0), App.Vector(-32, -7, 0)),  # 3
    Part.LineSegment(App.Vector(-32, -13, 0), App.Vector(-32, -23, 0)),  # 4
    Part.LineSegment(App.Vector(-32, -23, 0), App.Vector(-18, -23, 0)),  # 5
    Part.LineSegment(App.Vector(-18, -23, 0), App.Vector(-18, -13, 0)),  # 6
    Part.LineSegment(App.Vector(-18, -13, 0), App.Vector(-32, -13, 0)),  # 7
    Part.LineSegment(App.Vector(18, -13, 0), App.Vector(18, -23, 0)),  # 8
    Part.LineSegment(App.Vector(18, -23, 0), App.Vector(32, -23, 0)),  # 9
    Part.LineSegment(App.Vector(32, -23, 0), App.Vector(32, -13, 0)),  # 10
    Part.LineSegment(App.Vector(32, -13, 0), App.Vector(18, -13, 0)),  # 11
], False)
sketch5.addConstraint([
    Sketcher.Constraint("Coincident", 0, 2, 1, 1),
    Sketcher.Constraint("Coincident", 1, 2, 2, 1),
    Sketcher.Constraint("Coincident", 2, 2, 3, 1),
    Sketcher.Constraint("Coincident", 3, 2, 0, 1),
    Sketcher.Constraint("Coincident", 4, 2, 5, 1),
    Sketcher.Constraint("Coincident", 5, 2, 6, 1),
    Sketcher.Constraint("Coincident", 6, 2, 7, 1),
    Sketcher.Constraint("Coincident", 7, 2, 4, 1),
    Sketcher.Constraint("Coincident", 8, 2, 9, 1),
    Sketcher.Constraint("Coincident", 9, 2, 10, 1),
    Sketcher.Constraint("Coincident", 10, 2, 11, 1),
    Sketcher.Constraint("Coincident", 11, 2, 8, 1),
    Sketcher.Constraint("Vertical", 0),
    Sketcher.Constraint("Horizontal", 1),
    Sketcher.Constraint("Vertical", 2),
    Sketcher.Constraint("Horizontal", 3),
    Sketcher.Constraint("Vertical", 4),
    Sketcher.Constraint("Horizontal", 5),
    Sketcher.Constraint("Vertical", 6),
    Sketcher.Constraint("Horizontal", 7),
    Sketcher.Constraint("Vertical", 8),
    Sketcher.Constraint("Horizontal", 9),
    Sketcher.Constraint("Vertical", 10),
    Sketcher.Constraint("Horizontal", 11),
    Sketcher.Constraint("Symmetric", 5, 2, 8, 2, -2),
    Sketcher.Constraint("Symmetric", 7, 2, 10, 2, -2),
    Sketcher.Constraint("Vertical", 3, 2, 4, 2),
    Sketcher.Constraint("Equal", 3, 4),
    Sketcher.Constraint("DistanceX", 1, 1, 1, 2, Q("0.4 in")),
    Sketcher.Constraint("DistanceY", 4, 2, -1, 1, Q("0.9 in")),
    Sketcher.Constraint("DistanceX", 1, 2, 9, 2, Q("2.1 in")),
    Sketcher.Constraint("DistanceX", 5, 1, 5, 2, Q("0.525 in")),
    Sketcher.Constraint("DistanceY", 2, 2, -1, 1, Q("0.275 in")),
    Sketcher.Constraint("DistanceY", 0, 2, 0, 1, 5.465),
])
pad5 = body.newObject("PartDesign::Pad", "Pad004")
pad5.Profile = sketch5
pad5.Length = 5

# Sketch on XY plane
sketch6 = body.newObject("Sketcher::SketchObject", "Sketch005")
sketch6.AttachmentSupport = (doc.getObject("XY_Plane"), [""])
sketch6.MapMode = "FlatFace"
sketch6.addGeometry([
    Part.LineSegment(App.Vector(-16, -7, 0), App.Vector(-16, -23, 0)),
    Part.LineSegment(App.Vector(-16, -23, 0), App.Vector(16, -23, 0)),
    Part.LineSegment(App.Vector(16, -23, 0), App.Vector(16, -7, 0)),
    Part.LineSegment(App.Vector(16, -7, 0), App.Vector(-16, -7, 0)),
], False)
sketch6.addConstraint([
    Sketcher.Constraint("Coincident", 0, 2, 1, 1),
    Sketcher.Constraint("Coincident", 1, 2, 2, 1),
    Sketcher.Constraint("Coincident", 2, 2, 3, 1),
    Sketcher.Constraint("Coincident", 3, 2, 0, 1),
    Sketcher.Constraint("Vertical", 0),
    Sketcher.Constraint("Horizontal", 1),
    Sketcher.Constraint("Vertical", 2),
    Sketcher.Constraint("Horizontal", 3),
    Sketcher.Constraint("DistanceX", 1, 1, 1, 2, Q("1.25 in")),
    Sketcher.Constraint("DistanceY", 0, 2, -1, 1, Q("0.9 in")),
    Sketcher.Constraint("DistanceY", 0, 2, 0, 1, Q("0.625 in")),
    Sketcher.Constraint("DistanceX", 0, 2, -1, 1, Q("0.625 in")),
])
pad6 = body.newObject("PartDesign::Pad", "Pad005")
pad6.Profile = sketch6
pad6.Length = 13.6

doc.recompute()
